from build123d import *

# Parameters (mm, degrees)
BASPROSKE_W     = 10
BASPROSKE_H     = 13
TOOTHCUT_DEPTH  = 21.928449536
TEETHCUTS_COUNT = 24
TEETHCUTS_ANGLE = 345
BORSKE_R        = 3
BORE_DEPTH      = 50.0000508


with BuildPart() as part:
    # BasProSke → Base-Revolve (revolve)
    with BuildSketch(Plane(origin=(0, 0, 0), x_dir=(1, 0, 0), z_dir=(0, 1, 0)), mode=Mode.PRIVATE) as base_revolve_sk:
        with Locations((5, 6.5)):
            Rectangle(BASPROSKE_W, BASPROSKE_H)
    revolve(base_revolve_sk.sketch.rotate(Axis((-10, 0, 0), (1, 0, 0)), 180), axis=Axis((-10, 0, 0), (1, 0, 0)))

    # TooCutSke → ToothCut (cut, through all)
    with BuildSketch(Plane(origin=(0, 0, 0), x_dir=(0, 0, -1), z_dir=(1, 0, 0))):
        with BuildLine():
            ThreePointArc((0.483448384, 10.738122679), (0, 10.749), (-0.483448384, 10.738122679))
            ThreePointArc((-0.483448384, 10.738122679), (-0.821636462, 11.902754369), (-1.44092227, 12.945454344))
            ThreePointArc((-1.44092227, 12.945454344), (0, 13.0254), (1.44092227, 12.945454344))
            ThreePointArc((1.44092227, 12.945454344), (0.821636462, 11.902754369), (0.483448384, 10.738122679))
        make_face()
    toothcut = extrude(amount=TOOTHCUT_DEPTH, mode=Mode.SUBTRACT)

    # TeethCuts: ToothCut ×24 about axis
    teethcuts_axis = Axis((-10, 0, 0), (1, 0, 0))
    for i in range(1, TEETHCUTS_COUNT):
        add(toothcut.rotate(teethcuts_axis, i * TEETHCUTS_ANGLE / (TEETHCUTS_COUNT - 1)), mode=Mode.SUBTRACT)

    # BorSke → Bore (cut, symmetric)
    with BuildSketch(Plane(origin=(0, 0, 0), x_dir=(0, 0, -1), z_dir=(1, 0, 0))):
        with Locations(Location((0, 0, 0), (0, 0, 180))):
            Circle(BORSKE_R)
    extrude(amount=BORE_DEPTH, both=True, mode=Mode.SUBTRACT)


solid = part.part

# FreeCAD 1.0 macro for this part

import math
import FreeCAD as App
import Part
import Sketcher


def add_polygon(sketch, points):
    """Adds a closed chain of lines whose ends are joined by coincident constraints."""
    first, n = sketch.GeometryCount, len(points)
    for a, b in zip(points, points[1:] + points[:1]):
        sketch.addGeometry(Part.LineSegment(App.Vector(*a, 0), App.Vector(*b, 0)), False)
    for i in range(n):
        sketch.addConstraint(Sketcher.Constraint("Coincident", first + i, 2, first + (i + 1) % n, 1))

doc = App.newDocument("Part")
body = doc.addObject("PartDesign::Body", "Body")

# Sketch on XZ plane
sketch1 = body.newObject("Sketcher::SketchObject", "Sketch")
sketch1.AttachmentSupport = (doc.getObject("XZ_Plane"), [""])
sketch1.MapMode = "FlatFace"
add_polygon(sketch1, [(0, -13), (0, 0), (10, 0), (10, -13)])  # lines 0-3
sketch1.addConstraint([
    Sketcher.Constraint("Vertical", 0),
    Sketcher.Constraint("Horizontal", 1),
    Sketcher.Constraint("Vertical", 2),
    Sketcher.Constraint("Horizontal", 3),
    Sketcher.Constraint("Coincident", 0, 2, -1, 1),
    Sketcher.Constraint("DistanceX", 1, 1, 1, 2, 10.0),
    Sketcher.Constraint("DistanceY", 0, 1, 0, 2, 13.0),
])
revolution = body.newObject("PartDesign::Revolution", "Revolution")
revolution.Profile = sketch1
revolution.ReferenceAxis = (sketch1, ["H_Axis"])
revolution.Angle = 360

# Sketch on YZ plane
sketch2 = body.newObject("Sketcher::SketchObject", "Sketch001")
sketch2.AttachmentSupport = (doc.getObject("YZ_Plane"), [""])
sketch2.MapMode = "FlatFace"
sketch2.addGeometry([
    Part.ArcOfCircle(Part.Circle(App.Vector(0, 0, 0), App.Vector(0, 0, 1), 10.7), math.radians(-2.58), math.radians(2.58)),
    Part.ArcOfCircle(Part.Circle(App.Vector(10, -5.2, 0), App.Vector(0, 0, 1), 4.8), math.radians(52), math.radians(81)),
    Part.ArcOfCircle(Part.Circle(App.Vector(0, 0, 0), App.Vector(0, 0, 1), 13), math.radians(-6.35), math.radians(6.35)),
    Part.ArcOfCircle(Part.Circle(App.Vector(10, 5.2, 0), App.Vector(0, 0, 1), 4.8), math.radians(-81), math.radians(-52)),
], False)
sketch2.addConstraint([
    Sketcher.Constraint("Coincident", 0, 1, 1, 2),
    Sketcher.Constraint("Coincident", 1, 1, 2, 1),
    Sketcher.Constraint("Coincident", 2, 2, 3, 2),
    Sketcher.Constraint("Coincident", 3, 1, 0, 2),
    Sketcher.Constraint("Coincident", 0, 3, -1, 1),
    Sketcher.Constraint("Coincident", 2, 3, -1, 1),
    Sketcher.Constraint("Equal", 1, 3),
    Sketcher.Constraint("Symmetric", 1, 3, 3, 3, -1),
    Sketcher.Constraint("Radius", 1, 4.8),
    Sketcher.Constraint("Radius", 0, 10.749),
    Sketcher.Constraint("Radius", 2, 13.0254),
    Sketcher.Constraint("DistanceY", 1, 3, -1, 1, 5.225202),
    Sketcher.Constraint("DistanceX", -1, 1, 1, 3, 9.992621),
])
pocket1 = body.newObject("PartDesign::Pocket", "Pocket")
pocket1.Profile = sketch2
pocket1.Type = "ThroughAll"
pocket1.Reversed = True
doc.recompute()

polarpattern = body.newObject("PartDesign::PolarPattern", "PolarPattern")
polarpattern.Originals = [pocket1]
polarpattern.Axis = (doc.getObject("X_Axis"), [""])
polarpattern.Angle = 360
polarpattern.Occurrences = 24
body.Tip = polarpattern

# Sketch on YZ plane
sketch3 = body.newObject("Sketcher::SketchObject", "Sketch002")
sketch3.AttachmentSupport = (doc.getObject("YZ_Plane"), [""])
sketch3.MapMode = "FlatFace"
sketch3.addGeometry(Part.Circle(App.Vector(0, 0, 0), App.Vector(0, 0, 1), 3), False)
sketch3.addConstraint([
    Sketcher.Constraint("Coincident", 0, 3, -1, 1),
    Sketcher.Constraint("Diameter", 0, 6.0),
])
pocket2 = body.newObject("PartDesign::Pocket", "Pocket001")
pocket2.Profile = sketch3
pocket2.Length = 100.000102
pocket2.Midplane = True

doc.recompute()
